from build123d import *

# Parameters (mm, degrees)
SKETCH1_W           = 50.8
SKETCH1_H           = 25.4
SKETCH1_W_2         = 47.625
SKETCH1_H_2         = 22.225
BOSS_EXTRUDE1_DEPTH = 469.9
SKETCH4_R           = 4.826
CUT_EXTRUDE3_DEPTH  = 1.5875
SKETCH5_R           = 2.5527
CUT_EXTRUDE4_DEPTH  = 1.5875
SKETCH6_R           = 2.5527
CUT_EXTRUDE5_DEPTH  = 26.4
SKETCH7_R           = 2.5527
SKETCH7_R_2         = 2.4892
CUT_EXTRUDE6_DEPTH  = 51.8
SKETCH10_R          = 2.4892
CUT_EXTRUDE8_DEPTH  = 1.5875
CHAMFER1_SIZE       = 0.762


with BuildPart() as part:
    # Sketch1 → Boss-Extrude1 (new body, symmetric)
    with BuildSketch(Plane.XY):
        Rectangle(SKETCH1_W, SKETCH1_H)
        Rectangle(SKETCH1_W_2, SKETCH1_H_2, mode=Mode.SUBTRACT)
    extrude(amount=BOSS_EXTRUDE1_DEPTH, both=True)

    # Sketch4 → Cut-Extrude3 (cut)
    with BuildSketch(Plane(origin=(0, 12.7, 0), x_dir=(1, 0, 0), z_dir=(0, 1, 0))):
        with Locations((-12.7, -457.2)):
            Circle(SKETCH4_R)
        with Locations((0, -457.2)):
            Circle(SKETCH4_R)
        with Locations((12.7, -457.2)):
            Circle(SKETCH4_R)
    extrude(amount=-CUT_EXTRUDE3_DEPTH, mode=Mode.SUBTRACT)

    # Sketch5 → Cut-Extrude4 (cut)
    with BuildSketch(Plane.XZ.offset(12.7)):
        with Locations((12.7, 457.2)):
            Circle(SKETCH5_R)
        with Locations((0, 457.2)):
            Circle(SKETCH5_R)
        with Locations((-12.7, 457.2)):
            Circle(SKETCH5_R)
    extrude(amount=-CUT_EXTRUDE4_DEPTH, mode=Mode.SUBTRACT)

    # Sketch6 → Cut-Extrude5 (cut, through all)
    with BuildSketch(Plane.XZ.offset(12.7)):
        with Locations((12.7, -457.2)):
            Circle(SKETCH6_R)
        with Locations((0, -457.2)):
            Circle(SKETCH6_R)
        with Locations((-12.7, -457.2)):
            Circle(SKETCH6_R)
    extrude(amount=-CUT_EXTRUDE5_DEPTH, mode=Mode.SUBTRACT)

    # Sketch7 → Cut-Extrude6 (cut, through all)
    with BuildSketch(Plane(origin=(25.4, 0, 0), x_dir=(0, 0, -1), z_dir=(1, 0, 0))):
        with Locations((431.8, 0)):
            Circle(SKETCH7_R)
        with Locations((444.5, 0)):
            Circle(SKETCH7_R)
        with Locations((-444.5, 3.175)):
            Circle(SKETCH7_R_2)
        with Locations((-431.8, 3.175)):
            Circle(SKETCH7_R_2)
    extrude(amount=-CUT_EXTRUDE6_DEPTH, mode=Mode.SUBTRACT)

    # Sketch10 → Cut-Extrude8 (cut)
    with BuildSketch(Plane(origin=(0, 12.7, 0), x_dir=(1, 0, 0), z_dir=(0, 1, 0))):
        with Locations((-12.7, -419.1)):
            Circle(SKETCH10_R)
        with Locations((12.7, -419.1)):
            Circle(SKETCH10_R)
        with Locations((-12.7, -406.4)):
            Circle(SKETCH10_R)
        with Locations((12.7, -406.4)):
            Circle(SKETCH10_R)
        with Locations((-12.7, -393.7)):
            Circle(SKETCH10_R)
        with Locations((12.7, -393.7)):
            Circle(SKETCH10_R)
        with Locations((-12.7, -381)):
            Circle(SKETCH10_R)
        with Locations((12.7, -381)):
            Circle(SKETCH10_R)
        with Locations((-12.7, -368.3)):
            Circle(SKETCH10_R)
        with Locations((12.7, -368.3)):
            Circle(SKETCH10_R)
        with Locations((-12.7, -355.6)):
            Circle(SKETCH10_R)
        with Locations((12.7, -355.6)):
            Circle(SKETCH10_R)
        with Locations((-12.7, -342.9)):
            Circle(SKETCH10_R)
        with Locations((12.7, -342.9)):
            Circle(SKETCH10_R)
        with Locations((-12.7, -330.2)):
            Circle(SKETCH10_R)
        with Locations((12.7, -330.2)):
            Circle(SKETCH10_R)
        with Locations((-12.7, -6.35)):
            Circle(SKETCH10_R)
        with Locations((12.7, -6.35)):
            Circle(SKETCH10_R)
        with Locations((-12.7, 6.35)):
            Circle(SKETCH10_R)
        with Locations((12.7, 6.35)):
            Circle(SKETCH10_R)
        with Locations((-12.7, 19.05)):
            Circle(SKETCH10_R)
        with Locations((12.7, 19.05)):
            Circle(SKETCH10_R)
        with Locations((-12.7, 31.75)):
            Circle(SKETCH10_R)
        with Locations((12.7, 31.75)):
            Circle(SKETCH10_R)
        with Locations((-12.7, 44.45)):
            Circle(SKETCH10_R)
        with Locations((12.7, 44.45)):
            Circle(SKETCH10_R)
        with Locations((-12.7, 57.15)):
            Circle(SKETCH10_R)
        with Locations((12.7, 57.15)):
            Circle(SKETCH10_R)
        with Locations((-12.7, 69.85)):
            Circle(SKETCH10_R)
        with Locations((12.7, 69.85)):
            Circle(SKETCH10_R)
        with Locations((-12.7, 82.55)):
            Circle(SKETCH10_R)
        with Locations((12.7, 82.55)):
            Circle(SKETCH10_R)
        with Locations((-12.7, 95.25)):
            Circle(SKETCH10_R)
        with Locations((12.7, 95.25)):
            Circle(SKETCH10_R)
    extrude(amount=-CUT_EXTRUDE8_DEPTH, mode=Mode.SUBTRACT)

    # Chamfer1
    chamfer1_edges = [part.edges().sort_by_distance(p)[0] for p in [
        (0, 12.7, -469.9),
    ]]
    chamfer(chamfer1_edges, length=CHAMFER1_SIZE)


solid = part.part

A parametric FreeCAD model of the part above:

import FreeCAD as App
import Part
import Sketcher

V = App.Vector
Q = App.Units.Quantity


def edges_at(feature, points):
    """Names of the edges that pass closest to the given points."""
    edges = feature.Shape.Edges
    near = lambda p: min(range(len(edges)), key=lambda i: edges[i].distToShape(Part.Vertex(*p))[0])
    return sorted({f"Edge{near(p) + 1}" for p in points})


def add_polygon(sketch, points):
    """Adds a closed chain of lines whose ends are joined by coincident constraints."""
    first, n = sketch.GeometryCount, len(points)
    for a, b in zip(points, points[1:] + points[:1]):
        sketch.addGeometry(Part.LineSegment(App.Vector(*a, 0), App.Vector(*b, 0)), False)
    for i in range(n):
        sketch.addConstraint(Sketcher.Constraint("Coincident", first + i, 2, first + (i + 1) % n, 1))

doc = App.newDocument("Part")
body = doc.addObject("PartDesign::Body", "Body")

# Sketch on XY plane
sketch1 = body.newObject("Sketcher::SketchObject", "Sketch")
sketch1.AttachmentSupport = (doc.getObject("XY_Plane"), [""])
sketch1.MapMode = "FlatFace"
add_polygon(sketch1, [(-25, 13), (-25, -13), (25, -13), (25, 13)])  # lines 0-3
add_polygon(sketch1, [(24, -11), (-24, -11), (-24, 11), (24, 11)])  # lines 4-7
sketch1.addConstraint([
    Sketcher.Constraint("Vertical", 0),
    Sketcher.Constraint("Horizontal", 1),
    Sketcher.Constraint("Vertical", 2),
    Sketcher.Constraint("Horizontal", 3),
    Sketcher.Constraint("Horizontal", 4),
    Sketcher.Constraint("Vertical", 5),
    Sketcher.Constraint("Horizontal", 6),
    Sketcher.Constraint("Vertical", 7),
    Sketcher.Constraint("Symmetric", 0, 2, 2, 2, -1, 1),
    Sketcher.Constraint("Symmetric", 4, 2, 6, 2, -1, 1),
    Sketcher.Constraint("DistanceX", 1, 1, 1, 2, Q("2 in")),
    Sketcher.Constraint("DistanceY", 0, 2, 0, 1, Q("1 in")),
    Sketcher.Constraint("DistanceX", 4, 2, 4, 1, Q("1.875 in")),
    Sketcher.Constraint("DistanceY", 5, 1, 5, 2, Q("0.875 in")),
])
pad1 = body.newObject("PartDesign::Pad", "Pad")
pad1.Profile = sketch1
pad1.Length = Q("37 in")
pad1.Midplane = True

# Sketch on XZ plane
sketch2 = body.newObject("Sketcher::SketchObject", "Sketch001")
sketch2.AttachmentSupport = (doc.getObject("XZ_Plane"), [""])
sketch2.MapMode = "FlatFace"
sketch2.AttachmentOffset = App.Placement(V(0, 0, -0.5 * 25.4), App.Rotation())
sketch2.addGeometry([
    Part.Circle(V(-12.7, 457.2, 0), V(0, 0, 1), 4.8),
    Part.Circle(V(0, 457.2, 0), V(0, 0, 1), 4.8),
    Part.Circle(V(12.7, 457.2, 0), V(0, 0, 1), 4.8),
], False)
sketch2.addConstraint([
    Sketcher.Constraint("Equal", 0, 1),
    Sketcher.Constraint("Equal", 1, 2),
    Sketcher.Constraint("Symmetric", 0, 3, 2, 3, -2),
    Sketcher.Constraint("PointOnObject", 1, 3, -2),
    Sketcher.Constraint("Horizontal", 0, 3, 1, 3),
    Sketcher.Constraint("Diameter", 0, Q("0.38 in")),
    Sketcher.Constraint("DistanceY", -1, 1, 0, 3, Q("18 in")),
    Sketcher.Constraint("DistanceX", 0, 3, 2, 3, Q("1 in")),
])
pocket1 = body.newObject("PartDesign::Pocket", "Pocket")
pocket1.Profile = sketch2
pocket1.Length = Q("0.0625 in")
pocket1.Reversed = True

# Sketch on XZ plane
sketch3 = body.newObject("Sketcher::SketchObject", "Sketch002")
sketch3.AttachmentSupport = (doc.getObject("XZ_Plane"), [""])
sketch3.MapMode = "FlatFace"
sketch3.AttachmentOffset = App.Placement(V(0, 0, 0.5 * 25.4), App.Rotation())
sketch3.addGeometry([
    Part.Circle(V(12.7, 457.2, 0), V(0, 0, 1), 2.6),
    Part.Circle(V(0, 457.2, 0), V(0, 0, 1), 2.6),
    Part.Circle(V(-12.7, 457.2, 0), V(0, 0, 1), 2.6),
], False)
sketch3.addConstraint([
    Sketcher.Constraint("Equal", 0, 1),
    Sketcher.Constraint("Equal", 1, 2),
    Sketcher.Constraint("Symmetric", 0, 3, 2, 3, -2),
    Sketcher.Constraint("PointOnObject", 1, 3, -2),
    Sketcher.Constraint("Horizontal", 0, 3, 1, 3),
    Sketcher.Constraint("Diameter", 0, Q("0.201 in")),
    Sketcher.Constraint("DistanceY", -1, 1, 0, 3, Q("18 in")),
    Sketcher.Constraint("DistanceX", 2, 3, 0, 3, Q("1 in")),
])
pocket2 = body.newObject("PartDesign::Pocket", "Pocket001")
pocket2.Profile = sketch3
pocket2.Length = Q("0.0625 in")

# Sketch on XZ plane
sketch4 = body.newObject("Sketcher::SketchObject", "Sketch003")
sketch4.AttachmentSupport = (doc.getObject("XZ_Plane"), [""])
sketch4.MapMode = "FlatFace"
sketch4.AttachmentOffset = App.Placement(V(0, 0, 0.5 * 25.4), App.Rotation())
sketch4.addGeometry([
    Part.Circle(V(12.7, -457.2, 0), V(0, 0, 1), 2.6),
    Part.Circle(V(0, -457.2, 0), V(0, 0, 1), 2.6),
    Part.Circle(V(-12.7, -457.2, 0), V(0, 0, 1), 2.6),
], False)
sketch4.addConstraint([
    Sketcher.Constraint("Equal", 0, 1),
    Sketcher.Constraint("Equal", 1, 2),
    Sketcher.Constraint("Symmetric", 0, 3, 2, 3, -2),
    Sketcher.Constraint("PointOnObject", 1, 3, -2),
    Sketcher.Constraint("Horizontal", 0, 3, 1, 3),
    Sketcher.Constraint("Diameter", 0, Q("0.201 in")),
    Sketcher.Constraint("DistanceY", 0, 3, -1, 1, Q("18 in")),
    Sketcher.Constraint("DistanceX", 2, 3, 0, 3, Q("1 in")),
])
pocket3 = body.newObject("PartDesign::Pocket", "Pocket002")
pocket3.Profile = sketch4
pocket3.Type = "ThroughAll"

# Sketch on YZ plane
sketch5 = body.newObject("Sketcher::SketchObject", "Sketch004")
sketch5.AttachmentSupport = (doc.getObject("YZ_Plane"), [""])
sketch5.MapMode = "FlatFace"
sketch5.AttachmentOffset = App.Placement(V(0, 0, 1 * 25.4), App.Rotation())
sketch5.addGeometry([
    Part.Circle(V(0, -431.8, 0), V(0, 0, 1), 2.6),
    Part.Circle(V(0, -444.5, 0), V(0, 0, 1), 2.6),
    Part.Circle(V(3.2, 444.5, 0), V(0, 0, 1), 2.5),
    Part.Circle(V(3.2, 431.8, 0), V(0, 0, 1), 2.5),
], False)
sketch5.addConstraint([
    Sketcher.Constraint("Equal", 0, 1),
    Sketcher.Constraint("Equal", 2, 3),
    Sketcher.Constraint("PointOnObject", 0, 3, -2),
    Sketcher.Constraint("PointOnObject", 1, 3, -2),
    Sketcher.Constraint("Vertical", 2, 3, 3, 3),
    Sketcher.Constraint("Diameter", 0, Q("0.201 in")),
    Sketcher.Constraint("Diameter", 2, Q("0.196 in")),
    Sketcher.Constraint("DistanceY", 0, 3, -1, 1, Q("17 in")),
    Sketcher.Constraint("DistanceY", -1, 1, 3, 3, Q("17 in")),
    Sketcher.Constraint("DistanceY", 1, 3, 2, 3, Q("35 in")),
    Sketcher.Constraint("DistanceY", 1, 3, -1, 1, Q("17.5 in")),
    Sketcher.Constraint("DistanceX", -1, 1, 2, 3, Q("0.125 in")),
])
pocket4 = body.newObject("PartDesign::Pocket", "Pocket003")
pocket4.Profile = sketch5
pocket4.Type = "ThroughAll"

# Sketch on XZ plane
sketch6 = body.newObject("Sketcher::SketchObject", "Sketch005")
sketch6.AttachmentSupport = (doc.getObject("XZ_Plane"), [""])
sketch6.MapMode = "FlatFace"
sketch6.AttachmentOffset = App.Placement(V(0, 0, -0.5 * 25.4), App.Rotation())
sketch6.addGeometry([
    Part.Circle(V(-12.7, 419.1, 0), V(0, 0, 1), 2.5),  # 0
    Part.Circle(V(12.7, 419.1, 0), V(0, 0, 1), 2.5),  # 1
    Part.Circle(V(-12.7, 406.4, 0), V(0, 0, 1), 2.5),  # 2
    Part.Circle(V(12.7, 406.4, 0), V(0, 0, 1), 2.5),  # 3
    Part.Circle(V(-12.7, 393.7, 0), V(0, 0, 1), 2.5),  # 4
    Part.Circle(V(12.7, 393.7, 0), V(0, 0, 1), 2.5),  # 5
    Part.Circle(V(-12.7, 381, 0), V(0, 0, 1), 2.5),  # 6
    Part.Circle(V(12.7, 381, 0), V(0, 0, 1), 2.5),  # 7
    Part.Circle(V(-12.7, 368.3, 0), V(0, 0, 1), 2.5),  # 8
    Part.Circle(V(12.7, 368.3, 0), V(0, 0, 1), 2.5),  # 9
    Part.Circle(V(-12.7, 355.6, 0), V(0, 0, 1), 2.5),  # 10
    Part.Circle(V(12.7, 355.6, 0), V(0, 0, 1), 2.5),  # 11
    Part.Circle(V(-12.7, 342.9, 0), V(0, 0, 1), 2.5),  # 12
    Part.Circle(V(12.7, 342.9, 0), V(0, 0, 1), 2.5),  # 13
    Part.Circle(V(-12.7, 330.2, 0), V(0, 0, 1), 2.5),  # 14
    Part.Circle(V(12.7, 330.2, 0), V(0, 0, 1), 2.5),  # 15
    Part.Circle(V(-12.7, 6.3, 0), V(0, 0, 1), 2.5),  # 16
    Part.Circle(V(12.7, 6.3, 0), V(0, 0, 1), 2.5),  # 17
    Part.Circle(V(-12.7, -6.3, 0), V(0, 0, 1), 2.5),  # 18
    Part.Circle(V(12.7, -6.3, 0), V(0, 0, 1), 2.5),  # 19
    Part.Circle(V(-12.7, -19.1, 0), V(0, 0, 1), 2.5),  # 20
    Part.Circle(V(12.7, -19.1, 0), V(0, 0, 1), 2.5),  # 21
    Part.Circle(V(-12.7, -31.8, 0), V(0, 0, 1), 2.5),  # 22
    Part.Circle(V(12.7, -31.8, 0), V(0, 0, 1), 2.5),  # 23
    Part.Circle(V(-12.7, -44.5, 0), V(0, 0, 1), 2.5),  # 24
    Part.Circle(V(12.7, -44.5, 0), V(0, 0, 1), 2.5),  # 25
    Part.Circle(V(-12.7, -57.1, 0), V(0, 0, 1), 2.5),  # 26
    Part.Circle(V(12.7, -57.1, 0), V(0, 0, 1), 2.5),  # 27
    Part.Circle(V(-12.7, -69.8, 0), V(0, 0, 1), 2.5),  # 28
    Part.Circle(V(12.7, -69.8, 0), V(0, 0, 1), 2.5),  # 29
    Part.Circle(V(-12.7, -82.5, 0), V(0, 0, 1), 2.5),  # 30
    Part.Circle(V(12.7, -82.5, 0), V(0, 0, 1), 2.5),  # 31
    Part.Circle(V(-12.7, -95.2, 0), V(0, 0, 1), 2.5),  # 32
    Part.Circle(V(12.7, -95.2, 0), V(0, 0, 1), 2.5),  # 33
], False)
sketch6.addConstraint([
    Sketcher.Constraint("Equal", 0, 1),
    Sketcher.Constraint("Equal", 1, 2),
    Sketcher.Constraint("Equal", 2, 3),
    Sketcher.Constraint("Equal", 3, 4),
    Sketcher.Constraint("Equal", 4, 5),
    Sketcher.Constraint("Equal", 5, 6),
    Sketcher.Constraint("Equal", 6, 7),
    Sketcher.Constraint("Equal", 7, 8),
    Sketcher.Constraint("Equal", 8, 9),
    Sketcher.Constraint("Equal", 9, 10),
    Sketcher.Constraint("Equal", 10, 11),
    Sketcher.Constraint("Equal", 11, 12),
    Sketcher.Constraint("Equal", 12, 13),
    Sketcher.Constraint("Equal", 13, 14),
    Sketcher.Constraint("Equal", 14, 15),
    Sketcher.Constraint("Equal", 15, 16),
    Sketcher.Constraint("Equal", 16, 17),
    Sketcher.Constraint("Equal", 17, 18),
    Sketcher.Constraint("Equal", 18, 19),
    Sketcher.Constraint("Equal", 19, 20),
    Sketcher.Constraint("Equal", 20, 21),
    Sketcher.Constraint("Equal", 21, 22),
    Sketcher.Constraint("Equal", 22, 23),
    Sketcher.Constraint("Equal", 23, 24),
    Sketcher.Constraint("Equal", 24, 25),
    Sketcher.Constraint("Equal", 25, 26),
    Sketcher.Constraint("Equal", 26, 27),
    Sketcher.Constraint("Equal", 27, 28),
    Sketcher.Constraint("Equal", 28, 29),
    Sketcher.Constraint("Equal", 29, 30),
    Sketcher.Constraint("Equal", 30, 31),
    Sketcher.Constraint("Equal", 31, 32),
    Sketcher.Constraint("Equal", 32, 33),
    Sketcher.Constraint("Symmetric", 17, 3, 18, 3, -1, 1),
    Sketcher.Constraint("Symmetric", 16, 3, 19, 3, -1, 1),
    Sketcher.Constraint("Symmetric", 0, 3, 1, 3, -2),
    Sketcher.Constraint("Symmetric", 2, 3, 3, 3, -2),
    Sketcher.Constraint("Symmetric", 4, 3, 5, 3, -2),
    Sketcher.Constraint("Symmetric", 6, 3, 7, 3, -2),
    Sketcher.Constraint("Symmetric", 8, 3, 9, 3, -2),
    Sketcher.Constraint("Symmetric", 10, 3, 11, 3, -2),
    Sketcher.Constraint("Symmetric", 12, 3, 13, 3, -2),
    Sketcher.Constraint("Symmetric", 14, 3, 15, 3, -2),
    Sketcher.Constraint("Symmetric", 16, 3, 17, 3, -2),
    Sketcher.Constraint("Symmetric", 20, 3, 21, 3, -2),
    Sketcher.Constraint("Symmetric", 22, 3, 23, 3, -2),
    Sketcher.Constraint("Symmetric", 24, 3, 25, 3, -2),
    Sketcher.Constraint("Symmetric", 26, 3, 27, 3, -2),
    Sketcher.Constraint("Symmetric", 28, 3, 29, 3, -2),
    Sketcher.Constraint("Symmetric", 30, 3, 31, 3, -2),
    Sketcher.Constraint("Symmetric", 32, 3, 33, 3, -2),
    Sketcher.Constraint("Vertical", 0, 3, 2, 3),
    Sketcher.Constraint("Vertical", 2, 3, 4, 3),
    Sketcher.Constraint("Vertical", 4, 3, 6, 3),
    Sketcher.Constraint("Vertical", 6, 3, 8, 3),
    Sketcher.Constraint("Vertical", 8, 3, 10, 3),
    Sketcher.Constraint("Vertical", 10, 3, 12, 3),
    Sketcher.Constraint("Vertical", 12, 3, 14, 3),
    Sketcher.Constraint("Vertical", 14, 3, 16, 3),
    Sketcher.Constraint("Vertical", 18, 3, 20, 3),
    Sketcher.Constraint("Vertical", 20, 3, 22, 3),
    Sketcher.Constraint("Vertical", 22, 3, 24, 3),
    Sketcher.Constraint("Vertical", 24, 3, 26, 3),
    Sketcher.Constraint("Vertical", 26, 3, 28, 3),
    Sketcher.Constraint("Vertical", 28, 3, 30, 3),
    Sketcher.Constraint("Vertical", 30, 3, 32, 3),
    Sketcher.Constraint("Diameter", 0, Q("0.196 in")),
    Sketcher.Constraint("DistanceY", -1, 1, 2, 3, Q("16 in")),
    Sketcher.Constraint("DistanceY", -1, 1, 6, 3, Q("15 in")),
    Sketcher.Constraint("DistanceY", -1, 1, 10, 3, Q("14 in")),
    Sketcher.Constraint("DistanceY", -1, 1, 14, 3, Q("13 in")),
    Sketcher.Constraint("DistanceX", 0, 3, 1, 3, Q("1 in")),
    Sketcher.Constraint("DistanceY", 4, 3, 0, 3, Q("1 in")),
    Sketcher.Constraint("DistanceY", 8, 3, 4, 3, Q("1 in")),
    Sketcher.Constraint("DistanceY", 12, 3, 8, 3, Q("1 in")),
    Sketcher.Constraint("DistanceY", 20, 3, 16, 3, Q("1 in")),
    Sketcher.Constraint("DistanceY", 22, 3, 18, 3, Q("1 in")),
    Sketcher.Constraint("DistanceY", 24, 3, 20, 3, Q("1 in")),
    Sketcher.Constraint("DistanceY", 26, 3, 22, 3, Q("1 in")),
    Sketcher.Constraint("DistanceY", 28, 3, 24, 3, Q("1 in")),
    Sketcher.Constraint("DistanceY", 30, 3, 26, 3, Q("1 in")),
    Sketcher.Constraint("DistanceY", 32, 3, 28, 3, Q("1 in")),
    Sketcher.Constraint("DistanceY", -1, 1, 0, 3, Q("16.5 in")),
    Sketcher.Constraint("DistanceY", 18, 3, 16, 3, Q("0.5 in")),
])
pocket5 = body.newObject("PartDesign::Pocket", "Pocket004")
pocket5.Profile = sketch6
pocket5.Length = Q("0.0625 in")
pocket5.Reversed = True
doc.recompute()

chamfer = body.newObject("PartDesign::Chamfer", "Chamfer")
chamfer.Base = (pocket5, edges_at(pocket5, [(0, 12.7, -469.9)]))
chamfer.Size = Q("0.03 in")

doc.recompute()
